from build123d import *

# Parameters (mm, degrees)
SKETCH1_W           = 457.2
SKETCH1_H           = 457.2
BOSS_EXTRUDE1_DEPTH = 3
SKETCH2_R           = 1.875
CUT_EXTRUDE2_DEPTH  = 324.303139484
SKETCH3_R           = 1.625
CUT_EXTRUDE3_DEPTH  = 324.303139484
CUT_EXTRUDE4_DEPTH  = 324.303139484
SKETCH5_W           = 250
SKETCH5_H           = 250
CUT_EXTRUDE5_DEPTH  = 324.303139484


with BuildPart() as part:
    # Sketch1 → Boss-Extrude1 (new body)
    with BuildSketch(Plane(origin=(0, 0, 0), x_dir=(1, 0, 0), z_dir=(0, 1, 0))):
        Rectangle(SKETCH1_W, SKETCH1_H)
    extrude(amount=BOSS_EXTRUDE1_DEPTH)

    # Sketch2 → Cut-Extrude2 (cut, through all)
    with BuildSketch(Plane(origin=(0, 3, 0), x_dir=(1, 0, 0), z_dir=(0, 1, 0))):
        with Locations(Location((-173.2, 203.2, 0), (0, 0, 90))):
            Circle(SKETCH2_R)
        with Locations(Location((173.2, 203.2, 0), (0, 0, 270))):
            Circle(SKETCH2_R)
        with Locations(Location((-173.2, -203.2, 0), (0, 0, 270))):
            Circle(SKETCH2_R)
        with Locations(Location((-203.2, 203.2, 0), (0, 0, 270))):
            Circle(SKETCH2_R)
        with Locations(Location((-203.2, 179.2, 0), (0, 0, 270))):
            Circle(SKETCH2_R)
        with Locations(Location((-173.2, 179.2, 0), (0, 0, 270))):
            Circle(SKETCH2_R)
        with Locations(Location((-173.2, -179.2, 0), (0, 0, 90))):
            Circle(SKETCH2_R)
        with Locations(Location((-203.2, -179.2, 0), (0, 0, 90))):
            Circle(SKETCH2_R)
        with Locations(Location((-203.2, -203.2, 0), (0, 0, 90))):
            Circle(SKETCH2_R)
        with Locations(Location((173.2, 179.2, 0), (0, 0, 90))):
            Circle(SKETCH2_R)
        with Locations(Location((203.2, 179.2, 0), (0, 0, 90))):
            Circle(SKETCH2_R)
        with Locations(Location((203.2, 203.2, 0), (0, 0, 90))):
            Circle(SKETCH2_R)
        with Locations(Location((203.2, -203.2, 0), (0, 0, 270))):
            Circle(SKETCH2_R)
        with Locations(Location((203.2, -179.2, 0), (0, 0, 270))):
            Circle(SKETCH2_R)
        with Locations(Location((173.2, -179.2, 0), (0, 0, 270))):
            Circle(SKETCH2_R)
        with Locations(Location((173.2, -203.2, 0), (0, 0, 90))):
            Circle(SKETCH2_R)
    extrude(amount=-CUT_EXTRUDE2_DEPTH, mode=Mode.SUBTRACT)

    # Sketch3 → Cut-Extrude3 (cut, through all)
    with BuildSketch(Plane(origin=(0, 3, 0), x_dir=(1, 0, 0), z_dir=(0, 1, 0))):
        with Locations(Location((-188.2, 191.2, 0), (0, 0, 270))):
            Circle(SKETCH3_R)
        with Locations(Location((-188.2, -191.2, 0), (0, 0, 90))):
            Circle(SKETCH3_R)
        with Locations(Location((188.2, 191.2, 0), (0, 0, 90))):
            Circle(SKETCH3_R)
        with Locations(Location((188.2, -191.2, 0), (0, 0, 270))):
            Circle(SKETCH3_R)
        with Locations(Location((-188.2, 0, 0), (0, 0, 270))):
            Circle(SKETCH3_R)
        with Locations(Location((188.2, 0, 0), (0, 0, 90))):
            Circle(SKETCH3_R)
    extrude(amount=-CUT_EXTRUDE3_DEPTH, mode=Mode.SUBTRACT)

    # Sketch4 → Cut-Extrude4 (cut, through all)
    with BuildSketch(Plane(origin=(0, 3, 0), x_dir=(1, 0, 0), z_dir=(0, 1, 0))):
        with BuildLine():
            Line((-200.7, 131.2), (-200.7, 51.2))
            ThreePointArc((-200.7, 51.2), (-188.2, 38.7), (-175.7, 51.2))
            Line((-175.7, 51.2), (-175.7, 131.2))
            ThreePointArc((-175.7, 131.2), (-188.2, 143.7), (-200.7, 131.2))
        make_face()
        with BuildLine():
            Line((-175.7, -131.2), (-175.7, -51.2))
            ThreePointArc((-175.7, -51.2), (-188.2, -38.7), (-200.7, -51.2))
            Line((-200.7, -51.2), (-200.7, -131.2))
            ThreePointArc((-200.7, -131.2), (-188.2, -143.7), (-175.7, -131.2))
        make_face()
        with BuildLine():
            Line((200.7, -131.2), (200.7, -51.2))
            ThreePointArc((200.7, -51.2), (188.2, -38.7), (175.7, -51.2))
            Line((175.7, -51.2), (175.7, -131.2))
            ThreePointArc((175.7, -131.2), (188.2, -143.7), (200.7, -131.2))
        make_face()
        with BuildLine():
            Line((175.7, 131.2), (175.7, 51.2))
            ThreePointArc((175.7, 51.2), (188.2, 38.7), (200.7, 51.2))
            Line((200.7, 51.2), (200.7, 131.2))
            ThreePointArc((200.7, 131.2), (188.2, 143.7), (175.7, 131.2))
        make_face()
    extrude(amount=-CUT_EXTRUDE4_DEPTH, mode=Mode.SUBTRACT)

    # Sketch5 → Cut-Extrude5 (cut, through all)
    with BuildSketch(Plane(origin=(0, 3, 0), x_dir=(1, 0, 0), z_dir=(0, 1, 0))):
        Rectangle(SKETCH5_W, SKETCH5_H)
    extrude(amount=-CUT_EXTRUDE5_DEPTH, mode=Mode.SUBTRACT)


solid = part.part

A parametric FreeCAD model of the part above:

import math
import FreeCAD as App
import Part
import Sketcher

V = App.Vector

doc = App.newDocument("Part")
body = doc.addObject("PartDesign::Body", "Body")

# Sketch on XZ plane
sketch1 = doc.addObject("Sketcher::SketchObject", "Sketch")
body.addObject(sketch1)
sketch1.AttachmentSupport = (doc.XZ_Plane, [""])
sketch1.MapMode = "FlatFace"
sketch1.addGeometry([
    Part.LineSegment(V(-229, -229, 0), V(-229, 229, 0)),
    Part.LineSegment(V(-229, 229, 0), V(229, 229, 0)),
    Part.LineSegment(V(229, 229, 0), V(229, -229, 0)),
    Part.LineSegment(V(229, -229, 0), V(-229, -229, 0)),
], False)
sketch1.addConstraint([
    Sketcher.Constraint("Coincident", 0, 2, 1, 1),
    Sketcher.Constraint("Coincident", 1, 2, 2, 1),
    Sketcher.Constraint("Coincident", 2, 2, 3, 1),
    Sketcher.Constraint("Coincident", 3, 2, 0, 1),
    Sketcher.Constraint("Vertical", 0),
    Sketcher.Constraint("Horizontal", 1),
    Sketcher.Constraint("Vertical", 2),
    Sketcher.Constraint("Horizontal", 3),
    Sketcher.Constraint("Symmetric", 0, 2, 2, 2, -1, 1),
    Sketcher.Constraint("Equal", 3, 0),
    Sketcher.Constraint("DistanceX", 1, 1, 1, 2, 457.2),
])
pad1 = doc.addObject("PartDesign::Pad", "Pad")
body.addObject(pad1)
pad1.Profile = sketch1
pad1.Length = 3
pad1.Reversed = True

# Sketch on XZ plane
sketch2 = doc.addObject("Sketcher::SketchObject", "Sketch001")
body.addObject(sketch2)
sketch2.AttachmentSupport = (doc.XZ_Plane, [""])
sketch2.MapMode = "FlatFace"
sketch2.AttachmentOffset = App.Placement(V(0, 0, -3), App.Rotation())
sketch2.addGeometry([
    Part.Circle(V(-173.2, -203.2, 0), V(0, 0, 1), 1.9),  # 0
    Part.Circle(V(173.2, -203.2, 0), V(0, 0, 1), 1.9),  # 1
    Part.Circle(V(-173.2, 203.2, 0), V(0, 0, 1), 1.9),  # 2
    Part.Circle(V(-203.2, -203.2, 0), V(0, 0, 1), 1.9),  # 3
    Part.Circle(V(-203.2, -179.2, 0), V(0, 0, 1), 1.9),  # 4
    Part.Circle(V(-173.2, -179.2, 0), V(0, 0, 1), 1.9),  # 5
    Part.Circle(V(-173.2, 179.2, 0), V(0, 0, 1), 1.9),  # 6
    Part.Circle(V(-203.2, 179.2, 0), V(0, 0, 1), 1.9),  # 7
    Part.Circle(V(-203.2, 203.2, 0), V(0, 0, 1), 1.9),  # 8
    Part.Circle(V(173.2, -179.2, 0), V(0, 0, 1), 1.9),  # 9
    Part.Circle(V(203.2, -179.2, 0), V(0, 0, 1), 1.9),  # 10
    Part.Circle(V(203.2, -203.2, 0), V(0, 0, 1), 1.9),  # 11
    Part.Circle(V(203.2, 203.2, 0), V(0, 0, 1), 1.9),  # 12
    Part.Circle(V(203.2, 179.2, 0), V(0, 0, 1), 1.9),  # 13
    Part.Circle(V(173.2, 179.2, 0), V(0, 0, 1), 1.9),  # 14
    Part.Circle(V(173.2, 203.2, 0), V(0, 0, 1), 1.9),  # 15
], False)
sketch2.addConstraint([
    Sketcher.Constraint("Equal", 0, 1),
    Sketcher.Constraint("Equal", 1, 2),
    Sketcher.Constraint("Equal", 2, 3),
    Sketcher.Constraint("Equal", 3, 4),
    Sketcher.Constraint("Equal", 4, 5),
    Sketcher.Constraint("Equal", 5, 6),
    Sketcher.Constraint("Equal", 6, 7),
    Sketcher.Constraint("Equal", 7, 8),
    Sketcher.Constraint("Equal", 8, 9),
    Sketcher.Constraint("Equal", 9, 10),
    Sketcher.Constraint("Equal", 10, 11),
    Sketcher.Constraint("Equal", 11, 12),
    Sketcher.Constraint("Equal", 12, 13),
    Sketcher.Constraint("Equal", 13, 14),
    Sketcher.Constraint("Equal", 14, 15),
    Sketcher.Constraint("Symmetric", 1, 3, 2, 3, -1, 1),
    Sketcher.Constraint("Symmetric", 6, 3, 9, 3, -1, 1),
    Sketcher.Constraint("Symmetric", 7, 3, 10, 3, -1, 1),
    Sketcher.Constraint("Symmetric", 8, 3, 11, 3, -1, 1),
    Sketcher.Constraint("Symmetric", 3, 3, 12, 3, -1, 1),
    Sketcher.Constraint("Symmetric", 4, 3, 13, 3, -1, 1),
    Sketcher.Constraint("Symmetric", 5, 3, 14, 3, -1, 1),
    Sketcher.Constraint("Symmetric", 0, 3, 15, 3, -1, 1),
    Sketcher.Constraint("Symmetric", 0, 3, 1, 3, -2),
    Sketcher.Constraint("Symmetric", 5, 3, 9, 3, -2),
    Sketcher.Constraint("Symmetric", 4, 3, 10, 3, -2),
    Sketcher.Constraint("Symmetric", 3, 3, 11, 3, -2),
    Sketcher.Constraint("Horizontal", 1, 3, 3, 3),
    Sketcher.Constraint("Horizontal", 4, 3, 5, 3),
    Sketcher.Constraint("Vertical", 3, 3, 4, 3),
    Sketcher.Constraint("Vertical", 2, 3, 5, 3),
    Sketcher.Constraint("Diameter", 0, 3.75),
    Sketcher.Constraint("DistanceX", 3, 3, 0, 3, 30.0),
    Sketcher.Constraint("DistanceY", 3, 3, 4, 3, 24.0),
    Sketcher.Constraint("DistanceX", 0, 3, -1, 1, 173.2),
    Sketcher.Constraint("DistanceY", 0, 3, -1, 1, 203.2),
])
pocket1 = doc.addObject("PartDesign::Pocket", "Pocket")
body.addObject(pocket1)
pocket1.Profile = sketch2
pocket1.Type = "ThroughAll"
pocket1.Reversed = True

# Sketch on XZ plane
sketch3 = doc.addObject("Sketcher::SketchObject", "Sketch002")
body.addObject(sketch3)
sketch3.AttachmentSupport = (doc.XZ_Plane, [""])
sketch3.MapMode = "FlatFace"
sketch3.AttachmentOffset = App.Placement(V(0, 0, -3), App.Rotation())
sketch3.addGeometry([
    Part.Circle(V(-188.2, -191.2, 0), V(0, 0, 1), 1.6),  # 0
    Part.Circle(V(-188.2, 191.2, 0), V(0, 0, 1), 1.6),  # 1
    Part.Circle(V(188.2, -191.2, 0), V(0, 0, 1), 1.6),  # 2
    Part.Circle(V(188.2, 191.2, 0), V(0, 0, 1), 1.6),  # 3
    Part.Circle(V(-188.2, 0, 0), V(0, 0, 1), 1.6),  # 4
    Part.Circle(V(188.2, 0, 0), V(0, 0, 1), 1.6),  # 5
], False)
sketch3.addConstraint([
    Sketcher.Constraint("Equal", 0, 1),
    Sketcher.Constraint("Equal", 1, 2),
    Sketcher.Constraint("Equal", 2, 3),
    Sketcher.Constraint("Equal", 3, 4),
    Sketcher.Constraint("Equal", 4, 5),
    Sketcher.Constraint("Symmetric", 1, 3, 2, 3, -1, 1),
    Sketcher.Constraint("Symmetric", 0, 3, 3, 3, -1, 1),
    Sketcher.Constraint("Symmetric", 4, 3, 5, 3, -1, 1),
    Sketcher.Constraint("Symmetric", 0, 3, 2, 3, -2),
    Sketcher.Constraint("PointOnObject", 4, 3, -1),
    Sketcher.Constraint("Vertical", 1, 3, 4, 3),
    Sketcher.Constraint("Diameter", 0, 3.25),
    Sketcher.Constraint("DistanceX", 0, 3, -1, 1, 188.2),
    Sketcher.Constraint("DistanceY", 0, 3, -1, 1, 191.2),
])
pocket2 = doc.addObject("PartDesign::Pocket", "Pocket001")
body.addObject(pocket2)
pocket2.Profile = sketch3
pocket2.Type = "ThroughAll"
pocket2.Reversed = True

# Sketch on XZ plane
sketch4 = doc.addObject("Sketcher::SketchObject", "Sketch003")
body.addObject(sketch4)
sketch4.AttachmentSupport = (doc.XZ_Plane, [""])
sketch4.MapMode = "FlatFace"
sketch4.AttachmentOffset = App.Placement(V(0, 0, -3), App.Rotation())
sketch4.addGeometry([
    Part.LineSegment(V(-201, -131, 0), V(-201, -51, 0)),  # 0
    Part.ArcOfCircle(Part.Circle(V(-188, -51, 0), V(0, 0, 1), 12), math.radians(0), math.radians(180)),  # 1
    Part.LineSegment(V(-176, -51, 0), V(-176, -131, 0)),  # 2
    Part.ArcOfCircle(Part.Circle(V(-188, -131, 0), V(0, 0, 1), 12), math.radians(180), math.radians(360)),  # 3
    Part.LineSegment(V(-176, 131, 0), V(-176, 51, 0)),  # 4
    Part.ArcOfCircle(Part.Circle(V(-188, 51, 0), V(0, 0, 1), 12), math.radians(180), math.radians(360)),  # 5
    Part.LineSegment(V(-201, 51, 0), V(-201, 131, 0)),  # 6
    Part.ArcOfCircle(Part.Circle(V(-188, 131, 0), V(0, 0, 1), 12), math.radians(0), math.radians(180)),  # 7
    Part.LineSegment(V(201, 131, 0), V(201, 51, 0)),  # 8
    Part.ArcOfCircle(Part.Circle(V(188, 51, 0), V(0, 0, 1), 12), math.radians(180), math.radians(360)),  # 9
    Part.LineSegment(V(176, 51, 0), V(176, 131, 0)),  # 10
    Part.ArcOfCircle(Part.Circle(V(188, 131, 0), V(0, 0, 1), 12), math.radians(0), math.radians(180)),  # 11
    Part.LineSegment(V(176, -131, 0), V(176, -51, 0)),  # 12
    Part.ArcOfCircle(Part.Circle(V(188, -51, 0), V(0, 0, 1), 12), math.radians(0), math.radians(180)),  # 13
    Part.LineSegment(V(201, -51, 0), V(201, -131, 0)),  # 14
    Part.ArcOfCircle(Part.Circle(V(188, -131, 0), V(0, 0, 1), 12), math.radians(180), math.radians(360)),  # 15
], False)
sketch4.addConstraint([
    Sketcher.Constraint("Tangent", 0, 2, 1, 2),
    Sketcher.Constraint("Tangent", 1, 1, 2, 1),
    Sketcher.Constraint("Tangent", 2, 2, 3, 2),
    Sketcher.Constraint("Tangent", 3, 1, 0, 1),
    Sketcher.Constraint("Tangent", 4, 2, 5, 2),
    Sketcher.Constraint("Tangent", 5, 1, 6, 1),
    Sketcher.Constraint("Tangent", 6, 2, 7, 2),
    Sketcher.Constraint("Tangent", 7, 1, 4, 1),
    Sketcher.Constraint("Tangent", 8, 2, 9, 2),
    Sketcher.Constraint("Tangent", 9, 1, 10, 1),
    Sketcher.Constraint("Tangent", 10, 2, 11, 2),
    Sketcher.Constraint("Tangent", 11, 1, 8, 1),
    Sketcher.Constraint("Tangent", 12, 2, 13, 2),
    Sketcher.Constraint("Tangent", 13, 1, 14, 1),
    Sketcher.Constraint("Tangent", 14, 2, 15, 2),
    Sketcher.Constraint("Tangent", 15, 1, 12, 1),
    Sketcher.Constraint("Vertical", 0),
    Sketcher.Constraint("Vertical", 2),
    Sketcher.Constraint("Vertical", 4),
    Sketcher.Constraint("Vertical", 6),
    Sketcher.Constraint("Vertical", 8),
    Sketcher.Constraint("Vertical", 10),
    Sketcher.Constraint("Vertical", 12),
    Sketcher.Constraint("Vertical", 14),
    Sketcher.Constraint("Equal", 3, 5),
    Sketcher.Constraint("Equal", 7, 9),
    Sketcher.Constraint("Equal", 11, 13),
    Sketcher.Constraint("Symmetric", 1, 3, 9, 3, -1, 1),
    Sketcher.Constraint("Symmetric", 5, 3, 13, 3, -1, 1),
    Sketcher.Constraint("Symmetric", 5, 3, 9, 3, -2),
    Sketcher.Constraint("Horizontal", 7, 3, 11, 3),
    Sketcher.Constraint("Horizontal", 3, 3, 15, 3),
    Sketcher.Constraint("Equal", 2, 4),
    Sketcher.Constraint("Radius", 1, 12.5),
    Sketcher.Constraint("DistanceY", 0, 1, 0, 2, 80.0),
    Sketcher.Constraint("DistanceX", 1, 3, -1, 1, 188.2),
    Sketcher.Constraint("DistanceY", 1, 3, -1, 1, 51.2),
])
pocket3 = doc.addObject("PartDesign::Pocket", "Pocket002")
body.addObject(pocket3)
pocket3.Profile = sketch4
pocket3.Type = "ThroughAll"
pocket3.Reversed = True

# Sketch on XZ plane
sketch5 = doc.addObject("Sketcher::SketchObject", "Sketch004")
body.addObject(sketch5)
sketch5.AttachmentSupport = (doc.XZ_Plane, [""])
sketch5.MapMode = "FlatFace"
sketch5.AttachmentOffset = App.Placement(V(0, 0, -3), App.Rotation())
sketch5.addGeometry([
    Part.LineSegment(V(-125, -125, 0), V(-125, 125, 0)),
    Part.LineSegment(V(-125, 125, 0), V(125, 125, 0)),
    Part.LineSegment(V(125, 125, 0), V(125, -125, 0)),
    Part.LineSegment(V(125, -125, 0), V(-125, -125, 0)),
], False)
sketch5.addConstraint([
    Sketcher.Constraint("Coincident", 0, 2, 1, 1),
    Sketcher.Constraint("Coincident", 1, 2, 2, 1),
    Sketcher.Constraint("Coincident", 2, 2, 3, 1),
    Sketcher.Constraint("Coincident", 3, 2, 0, 1),
    Sketcher.Constraint("Vertical", 0),
    Sketcher.Constraint("Horizontal", 1),
    Sketcher.Constraint("Vertical", 2),
    Sketcher.Constraint("Horizontal", 3),
    Sketcher.Constraint("Symmetric", 0, 2, 2, 2, -1, 1),
    Sketcher.Constraint("Equal", 3, 0),
    Sketcher.Constraint("DistanceX", 1, 1, 1, 2, 250.0),
])
pocket4 = doc.addObject("PartDesign::Pocket", "Pocket003")
body.addObject(pocket4)
pocket4.Profile = sketch5
pocket4.Type = "ThroughAll"
pocket4.Reversed = True

doc.recompute()
